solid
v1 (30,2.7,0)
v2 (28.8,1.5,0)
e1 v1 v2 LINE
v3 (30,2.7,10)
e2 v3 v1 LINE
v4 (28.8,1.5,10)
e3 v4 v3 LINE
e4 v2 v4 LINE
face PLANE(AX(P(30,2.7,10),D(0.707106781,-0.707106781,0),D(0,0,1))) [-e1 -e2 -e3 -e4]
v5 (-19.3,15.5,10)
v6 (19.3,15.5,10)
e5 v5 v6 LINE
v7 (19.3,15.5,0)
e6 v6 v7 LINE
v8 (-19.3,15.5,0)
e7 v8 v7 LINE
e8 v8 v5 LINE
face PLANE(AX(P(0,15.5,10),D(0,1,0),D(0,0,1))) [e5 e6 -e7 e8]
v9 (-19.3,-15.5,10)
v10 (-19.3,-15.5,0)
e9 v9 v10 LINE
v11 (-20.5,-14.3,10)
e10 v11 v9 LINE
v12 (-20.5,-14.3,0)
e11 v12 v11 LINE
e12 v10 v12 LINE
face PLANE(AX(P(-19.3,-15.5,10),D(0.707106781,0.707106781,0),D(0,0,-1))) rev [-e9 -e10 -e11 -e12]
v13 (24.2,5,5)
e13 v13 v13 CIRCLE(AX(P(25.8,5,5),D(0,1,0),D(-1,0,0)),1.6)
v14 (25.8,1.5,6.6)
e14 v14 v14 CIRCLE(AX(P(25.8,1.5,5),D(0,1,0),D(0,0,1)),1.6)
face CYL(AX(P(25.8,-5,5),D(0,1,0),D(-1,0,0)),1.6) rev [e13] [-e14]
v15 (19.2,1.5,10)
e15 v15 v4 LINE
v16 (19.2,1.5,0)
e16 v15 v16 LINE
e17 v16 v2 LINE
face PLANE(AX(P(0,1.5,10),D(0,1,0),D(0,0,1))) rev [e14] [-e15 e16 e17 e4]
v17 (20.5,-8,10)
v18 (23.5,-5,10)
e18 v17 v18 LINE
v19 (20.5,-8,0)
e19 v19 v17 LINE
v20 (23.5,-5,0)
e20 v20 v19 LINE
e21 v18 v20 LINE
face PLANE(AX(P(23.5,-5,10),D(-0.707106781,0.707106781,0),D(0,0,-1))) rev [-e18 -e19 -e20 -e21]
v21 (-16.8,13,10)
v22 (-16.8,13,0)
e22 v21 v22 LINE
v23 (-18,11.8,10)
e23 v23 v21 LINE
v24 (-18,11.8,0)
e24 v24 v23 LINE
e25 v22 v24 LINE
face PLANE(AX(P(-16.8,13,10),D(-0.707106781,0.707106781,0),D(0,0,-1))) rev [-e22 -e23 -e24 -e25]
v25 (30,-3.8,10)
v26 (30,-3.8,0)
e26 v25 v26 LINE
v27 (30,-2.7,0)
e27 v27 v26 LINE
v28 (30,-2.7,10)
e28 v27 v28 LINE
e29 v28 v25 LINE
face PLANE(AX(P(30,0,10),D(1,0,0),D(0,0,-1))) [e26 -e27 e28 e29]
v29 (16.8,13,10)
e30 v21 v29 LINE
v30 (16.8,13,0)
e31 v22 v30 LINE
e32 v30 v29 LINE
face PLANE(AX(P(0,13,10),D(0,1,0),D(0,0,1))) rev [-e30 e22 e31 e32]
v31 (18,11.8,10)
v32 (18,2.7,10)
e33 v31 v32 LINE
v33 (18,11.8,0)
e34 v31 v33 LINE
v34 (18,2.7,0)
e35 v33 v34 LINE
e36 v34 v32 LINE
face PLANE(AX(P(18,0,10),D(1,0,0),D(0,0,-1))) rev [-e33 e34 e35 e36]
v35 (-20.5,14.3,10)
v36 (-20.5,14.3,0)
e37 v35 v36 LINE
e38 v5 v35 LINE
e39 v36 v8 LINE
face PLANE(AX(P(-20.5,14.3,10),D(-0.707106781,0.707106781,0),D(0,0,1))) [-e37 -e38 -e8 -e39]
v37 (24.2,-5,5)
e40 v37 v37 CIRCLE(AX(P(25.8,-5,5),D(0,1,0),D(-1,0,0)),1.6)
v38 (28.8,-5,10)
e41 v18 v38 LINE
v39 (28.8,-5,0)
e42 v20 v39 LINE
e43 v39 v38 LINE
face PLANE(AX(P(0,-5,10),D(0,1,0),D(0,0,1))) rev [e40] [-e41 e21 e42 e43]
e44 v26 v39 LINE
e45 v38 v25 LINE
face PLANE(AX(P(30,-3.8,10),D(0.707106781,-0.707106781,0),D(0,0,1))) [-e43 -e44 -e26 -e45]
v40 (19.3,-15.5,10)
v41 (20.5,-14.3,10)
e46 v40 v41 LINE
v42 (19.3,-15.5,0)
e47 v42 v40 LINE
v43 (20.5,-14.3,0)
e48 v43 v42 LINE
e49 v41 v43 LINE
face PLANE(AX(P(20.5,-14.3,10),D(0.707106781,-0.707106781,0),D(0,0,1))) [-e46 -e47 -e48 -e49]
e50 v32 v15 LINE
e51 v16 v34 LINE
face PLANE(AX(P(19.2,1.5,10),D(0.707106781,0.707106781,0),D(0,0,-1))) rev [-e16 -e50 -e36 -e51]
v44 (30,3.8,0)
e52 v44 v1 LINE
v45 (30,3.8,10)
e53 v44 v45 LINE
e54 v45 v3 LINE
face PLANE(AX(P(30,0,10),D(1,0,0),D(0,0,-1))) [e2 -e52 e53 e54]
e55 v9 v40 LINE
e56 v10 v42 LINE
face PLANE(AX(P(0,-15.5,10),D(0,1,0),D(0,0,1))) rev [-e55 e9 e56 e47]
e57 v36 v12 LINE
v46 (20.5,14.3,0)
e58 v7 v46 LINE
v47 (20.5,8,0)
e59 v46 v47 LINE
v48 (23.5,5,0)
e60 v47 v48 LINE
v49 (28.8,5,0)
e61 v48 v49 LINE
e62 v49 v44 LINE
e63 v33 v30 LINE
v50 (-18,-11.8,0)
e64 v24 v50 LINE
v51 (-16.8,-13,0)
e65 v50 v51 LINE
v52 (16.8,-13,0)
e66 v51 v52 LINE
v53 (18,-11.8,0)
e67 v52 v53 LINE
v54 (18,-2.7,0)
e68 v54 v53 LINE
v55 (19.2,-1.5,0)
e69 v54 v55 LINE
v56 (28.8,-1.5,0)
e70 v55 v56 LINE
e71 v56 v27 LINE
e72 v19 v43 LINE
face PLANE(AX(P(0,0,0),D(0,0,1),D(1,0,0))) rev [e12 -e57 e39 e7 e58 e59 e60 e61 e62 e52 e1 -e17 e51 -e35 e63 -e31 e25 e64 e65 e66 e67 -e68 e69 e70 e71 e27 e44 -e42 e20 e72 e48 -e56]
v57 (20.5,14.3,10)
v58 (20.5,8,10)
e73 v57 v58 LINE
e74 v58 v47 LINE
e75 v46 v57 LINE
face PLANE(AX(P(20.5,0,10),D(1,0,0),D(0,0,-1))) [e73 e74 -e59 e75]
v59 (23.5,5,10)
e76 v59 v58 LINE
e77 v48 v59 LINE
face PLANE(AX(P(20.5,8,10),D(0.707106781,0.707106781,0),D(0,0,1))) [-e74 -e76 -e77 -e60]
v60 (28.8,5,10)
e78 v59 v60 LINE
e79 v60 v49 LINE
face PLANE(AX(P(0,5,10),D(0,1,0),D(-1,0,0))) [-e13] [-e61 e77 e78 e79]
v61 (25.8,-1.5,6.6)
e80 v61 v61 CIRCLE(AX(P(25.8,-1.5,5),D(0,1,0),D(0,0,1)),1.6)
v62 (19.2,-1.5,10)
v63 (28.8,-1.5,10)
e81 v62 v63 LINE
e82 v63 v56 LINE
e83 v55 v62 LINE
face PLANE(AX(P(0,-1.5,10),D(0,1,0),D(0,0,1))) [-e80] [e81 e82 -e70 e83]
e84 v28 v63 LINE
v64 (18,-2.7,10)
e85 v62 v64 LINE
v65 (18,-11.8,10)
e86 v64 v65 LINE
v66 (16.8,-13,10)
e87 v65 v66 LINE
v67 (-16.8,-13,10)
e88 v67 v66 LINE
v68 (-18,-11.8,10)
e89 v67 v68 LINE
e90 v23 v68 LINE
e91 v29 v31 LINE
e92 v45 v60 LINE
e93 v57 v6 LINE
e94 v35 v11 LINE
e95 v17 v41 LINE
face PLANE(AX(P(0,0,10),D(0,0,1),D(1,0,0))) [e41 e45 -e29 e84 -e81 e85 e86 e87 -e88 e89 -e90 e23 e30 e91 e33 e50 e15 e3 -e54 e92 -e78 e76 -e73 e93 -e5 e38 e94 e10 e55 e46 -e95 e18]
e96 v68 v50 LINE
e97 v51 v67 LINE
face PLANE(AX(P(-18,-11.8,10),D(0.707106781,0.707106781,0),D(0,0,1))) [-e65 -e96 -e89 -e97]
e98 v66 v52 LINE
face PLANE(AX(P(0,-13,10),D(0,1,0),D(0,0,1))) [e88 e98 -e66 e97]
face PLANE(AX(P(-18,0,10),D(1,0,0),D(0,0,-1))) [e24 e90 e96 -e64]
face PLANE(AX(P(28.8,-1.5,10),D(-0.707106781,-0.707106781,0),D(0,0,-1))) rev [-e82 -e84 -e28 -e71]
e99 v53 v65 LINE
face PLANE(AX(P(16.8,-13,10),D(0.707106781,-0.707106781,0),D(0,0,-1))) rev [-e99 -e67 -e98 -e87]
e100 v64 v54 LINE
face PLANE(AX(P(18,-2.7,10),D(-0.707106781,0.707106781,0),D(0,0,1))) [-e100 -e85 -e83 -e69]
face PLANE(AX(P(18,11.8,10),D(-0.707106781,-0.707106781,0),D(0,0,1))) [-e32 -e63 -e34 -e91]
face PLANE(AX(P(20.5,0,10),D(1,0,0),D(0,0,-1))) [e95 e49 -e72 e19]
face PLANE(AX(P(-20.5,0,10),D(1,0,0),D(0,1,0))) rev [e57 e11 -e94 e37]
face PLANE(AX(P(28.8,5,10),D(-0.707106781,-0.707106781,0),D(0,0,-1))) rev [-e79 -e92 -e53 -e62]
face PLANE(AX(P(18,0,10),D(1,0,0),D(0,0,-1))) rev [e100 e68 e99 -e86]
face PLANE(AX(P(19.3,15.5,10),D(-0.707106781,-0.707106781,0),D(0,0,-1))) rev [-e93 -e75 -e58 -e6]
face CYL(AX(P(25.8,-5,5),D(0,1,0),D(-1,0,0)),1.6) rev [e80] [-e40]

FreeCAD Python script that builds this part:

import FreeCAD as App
import Part
import Sketcher
from FreeCAD import Vector
Q = App.Units.Quantity


def edges_at(feature, points):
    """Names of the edges that pass closest to the given points."""
    edges = feature.Shape.Edges
    near = lambda p: min(range(len(edges)), key=lambda i: edges[i].distToShape(Part.Vertex(*p))[0])
    return sorted({f"Edge{near(p) + 1}" for p in points})


def add_polygon(sketch, points):
    """Adds a closed chain of lines whose ends are joined by coincident constraints."""
    first, n = sketch.GeometryCount, len(points)
    for a, b in zip(points, points[1:] + points[:1]):
        sketch.addGeometry(Part.LineSegment(App.Vector(*a, 0), App.Vector(*b, 0)), False)
    for i in range(n):
        sketch.addConstraint(Sketcher.Constraint("Coincident", first + i, 2, first + (i + 1) % n, 1))

doc = App.newDocument("Part")
body = doc.addObject("PartDesign::Body", "Body")

# Sketch on XY plane
sketch1 = body.newObject("Sketcher::SketchObject", "Sketch")
sketch1.AttachmentSupport = (doc.getObject("XY_Plane"), [""])
sketch1.MapMode = "FlatFace"
add_polygon(sketch1, [(30, 1.5), (30, 5), (20.5, 5), (20.5, 15.5), (-20.5, 15.5), (-20.5, -15.5), (20.5, -15.5), (20.5, -5), (30, -5), (30, -1.5), (18, -1.5), (18, -13), (-18, -13), (-18, 13), (18, 13), (18, 1.5)])  # lines 0-15
sketch1.addConstraint(Sketcher.Constraint("Vertical", 0))
sketch1.addConstraint(Sketcher.Constraint("Horizontal", 1))
sketch1.addConstraint(Sketcher.Constraint("Vertical", 2))
sketch1.addConstraint(Sketcher.Constraint("Horizontal", 3))
sketch1.addConstraint(Sketcher.Constraint("Vertical", 4))
sketch1.addConstraint(Sketcher.Constraint("Horizontal", 5))
sketch1.addConstraint(Sketcher.Constraint("Vertical", 6))
sketch1.addConstraint(Sketcher.Constraint("Horizontal", 7))
sketch1.addConstraint(Sketcher.Constraint("Vertical", 8))
sketch1.addConstraint(Sketcher.Constraint("Horizontal", 9))
sketch1.addConstraint(Sketcher.Constraint("Vertical", 10))
sketch1.addConstraint(Sketcher.Constraint("Horizontal", 11))
sketch1.addConstraint(Sketcher.Constraint("Vertical", 12))
sketch1.addConstraint(Sketcher.Constraint("Horizontal", 13))
sketch1.addConstraint(Sketcher.Constraint("Vertical", 14))
sketch1.addConstraint(Sketcher.Constraint("Horizontal", 15))
sketch1.addConstraint(Sketcher.Constraint("Symmetric", 2, 2, 4, 2, -1, 1))
sketch1.addConstraint(Sketcher.Constraint("Symmetric", 10, 2, 12, 2, -1, 1))
sketch1.addConstraint(Sketcher.Constraint("Symmetric", 1, 2, 6, 2, -1))
sketch1.addConstraint(Sketcher.Constraint("Symmetric", 9, 2, 14, 2, -1))
sketch1.addConstraint(Sketcher.Constraint("Vertical", 0, 2, 7, 2))
sketch1.addConstraint(Sketcher.Constraint("DistanceX", 3, 2, 3, 1, Q("41 mm")))
sketch1.addConstraint(Sketcher.Constraint("DistanceX", 9, 2, 9, 1, Q("12 mm")))
sketch1.addConstraint(Sketcher.Constraint("DistanceX", 11, 2, 11, 1, Q("36 mm")))
sketch1.addConstraint(Sketcher.Constraint("DistanceY", 4, 2, 4, 1, Q("31 mm")))
sketch1.addConstraint(Sketcher.Constraint("DistanceY", 12, 1, 12, 2, Q("26 mm")))
sketch1.addConstraint(Sketcher.Constraint("DistanceY", 0, 1, 0, 2, Q("3.5 mm")))
sketch1.addConstraint(Sketcher.Constraint("DistanceY", 2, 1, 2, 2, Q("10.5 mm")))
pad1 = body.newObject("PartDesign::Pad", "Pad")
pad1.Profile = sketch1
pad1.Length = 10
doc.recompute()

chamfer = body.newObject("PartDesign::Chamfer", "Chamfer")
chamfer.Base = (pad1, edges_at(pad1, [(20.5, -5, 5), (20.5, 5, 5)]))
chamfer.Size = 3
doc.recompute()

chamfer2 = body.newObject("PartDesign::Chamfer", "Chamfer001")
chamfer2.Base = (chamfer, edges_at(chamfer, [
    (30, 5, 5),
    (30, 1.5, 5),
    (18, 1.5, 5),
    (18, 13, 5),
    (-18, 13, 5),
    (-18, -13, 5),
    (18, -13, 5),
    (18, -1.5, 5),
    (30, -1.5, 5),
    (30, -5, 5),
    (20.5, -15.5, 5),
    (-20.5, -15.5, 5),
    (-20.5, 15.5, 5),
    (20.5, 15.5, 5),
]))
chamfer2.Size = 1.2

# Sketch on XZ plane
sketch2 = body.newObject("Sketcher::SketchObject", "Sketch001")
sketch2.AttachmentSupport = (doc.getObject("XZ_Plane"), [""])
sketch2.MapMode = "FlatFace"
sketch2.AttachmentOffset = App.Placement(Vector(0, 0, -5), App.Rotation())
sketch2.addGeometry(Part.Circle(Vector(25.8, 5, 0), Vector(0, 0, 1), 1.6), False)
sketch2.addConstraint(Sketcher.Constraint("Diameter", 0, Q("3.2 mm")))
sketch2.addConstraint(Sketcher.Constraint("DistanceY", -1, 1, 0, 3, Q("5 mm")))
sketch2.addConstraint(Sketcher.Constraint("DistanceX", -1, 1, 0, 3, Q("25.8 mm")))
pocket1 = body.newObject("PartDesign::Pocket", "Pocket")
pocket1.Profile = sketch2
pocket1.Length = 10
pocket1.Reversed = True

doc.recompute()
